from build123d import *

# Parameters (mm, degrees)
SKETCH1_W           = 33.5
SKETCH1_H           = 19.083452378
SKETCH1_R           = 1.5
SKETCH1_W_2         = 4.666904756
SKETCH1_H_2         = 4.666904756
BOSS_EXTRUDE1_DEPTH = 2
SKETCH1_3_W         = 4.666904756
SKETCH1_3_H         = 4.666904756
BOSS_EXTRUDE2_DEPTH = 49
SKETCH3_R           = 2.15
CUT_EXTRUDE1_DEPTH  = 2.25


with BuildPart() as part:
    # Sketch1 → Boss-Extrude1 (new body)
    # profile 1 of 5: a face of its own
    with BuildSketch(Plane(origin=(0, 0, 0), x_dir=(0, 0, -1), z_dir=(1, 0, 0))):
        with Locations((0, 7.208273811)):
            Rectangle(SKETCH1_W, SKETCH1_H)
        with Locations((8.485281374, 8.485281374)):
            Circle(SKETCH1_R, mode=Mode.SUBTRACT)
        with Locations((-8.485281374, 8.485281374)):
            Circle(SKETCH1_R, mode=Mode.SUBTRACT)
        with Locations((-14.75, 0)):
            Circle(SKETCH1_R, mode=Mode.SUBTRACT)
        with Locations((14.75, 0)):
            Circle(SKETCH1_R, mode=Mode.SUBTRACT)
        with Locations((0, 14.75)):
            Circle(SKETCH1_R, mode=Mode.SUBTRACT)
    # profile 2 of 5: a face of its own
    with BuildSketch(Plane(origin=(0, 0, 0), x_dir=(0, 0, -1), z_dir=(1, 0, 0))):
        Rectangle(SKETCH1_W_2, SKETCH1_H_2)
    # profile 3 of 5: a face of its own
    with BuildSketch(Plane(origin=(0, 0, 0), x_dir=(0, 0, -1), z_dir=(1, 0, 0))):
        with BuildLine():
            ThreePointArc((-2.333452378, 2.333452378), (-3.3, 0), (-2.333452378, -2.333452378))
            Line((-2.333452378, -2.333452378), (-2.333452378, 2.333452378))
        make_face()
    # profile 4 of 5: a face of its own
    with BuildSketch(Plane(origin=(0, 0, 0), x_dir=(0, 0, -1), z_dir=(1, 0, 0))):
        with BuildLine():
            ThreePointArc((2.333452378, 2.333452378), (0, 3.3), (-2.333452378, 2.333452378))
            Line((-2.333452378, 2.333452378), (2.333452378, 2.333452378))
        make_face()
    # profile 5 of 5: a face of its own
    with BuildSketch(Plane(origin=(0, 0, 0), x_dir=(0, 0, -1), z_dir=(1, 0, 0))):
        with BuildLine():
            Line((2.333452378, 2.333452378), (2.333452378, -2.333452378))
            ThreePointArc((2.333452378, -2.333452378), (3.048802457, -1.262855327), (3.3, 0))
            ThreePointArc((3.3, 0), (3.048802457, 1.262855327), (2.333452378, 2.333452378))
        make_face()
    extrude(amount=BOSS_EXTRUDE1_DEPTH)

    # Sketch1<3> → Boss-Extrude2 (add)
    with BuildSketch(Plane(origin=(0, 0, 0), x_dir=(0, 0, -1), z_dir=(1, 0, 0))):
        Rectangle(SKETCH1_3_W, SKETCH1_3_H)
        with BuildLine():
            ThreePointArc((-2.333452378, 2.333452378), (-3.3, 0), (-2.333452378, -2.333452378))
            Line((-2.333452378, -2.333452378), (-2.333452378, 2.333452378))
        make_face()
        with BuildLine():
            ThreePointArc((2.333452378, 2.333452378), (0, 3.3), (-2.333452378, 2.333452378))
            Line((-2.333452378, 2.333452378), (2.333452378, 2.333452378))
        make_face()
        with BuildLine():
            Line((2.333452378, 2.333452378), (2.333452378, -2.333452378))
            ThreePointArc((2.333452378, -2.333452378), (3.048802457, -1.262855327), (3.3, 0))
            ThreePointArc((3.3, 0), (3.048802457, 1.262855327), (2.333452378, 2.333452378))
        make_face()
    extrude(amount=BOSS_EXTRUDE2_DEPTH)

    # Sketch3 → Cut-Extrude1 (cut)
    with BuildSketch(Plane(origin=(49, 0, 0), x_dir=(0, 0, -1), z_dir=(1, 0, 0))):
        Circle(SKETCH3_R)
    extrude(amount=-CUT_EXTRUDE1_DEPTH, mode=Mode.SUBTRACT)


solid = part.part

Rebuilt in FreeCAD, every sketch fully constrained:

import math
import FreeCAD as App
import Part
import Sketcher

doc = App.newDocument("Part")
body = doc.addObject("PartDesign::Body", "Body")

# Sketch on YZ plane
sketch1 = body.newObject("Sketcher::SketchObject", "Sketch")
sketch1.AttachmentSupport = (doc.getObject("YZ_Plane"), [""])
sketch1.MapMode = "FlatFace"
sketch1.addGeometry(Part.LineSegment(App.Vector(16.8, 16.8, 0), App.Vector(-2.3, 16.8, 0)), False)
sketch1.addGeometry(Part.LineSegment(App.Vector(-2.3, 16.8, 0), App.Vector(-2.3, -16.8, 0)), False)
sketch1.addGeometry(Part.LineSegment(App.Vector(-2.3, -16.8, 0), App.Vector(16.8, -16.8, 0)), False)
sketch1.addGeometry(Part.LineSegment(App.Vector(16.8, -16.8, 0), App.Vector(16.8, 16.8, 0)), False)
sketch1.addGeometry(Part.Circle(App.Vector(0, 14.8, 0), App.Vector(0, 0, 1), 1.5), False)
sketch1.addGeometry(Part.Circle(App.Vector(0, -14.8, 0), App.Vector(0, 0, 1), 1.5), False)
sketch1.addGeometry(Part.Circle(App.Vector(8.5, 8.5, 0), App.Vector(0, 0, 1), 1.5), False)
sketch1.addGeometry(Part.Circle(App.Vector(8.5, -8.5, 0), App.Vector(0, 0, 1), 1.5), False)
sketch1.addGeometry(Part.Circle(App.Vector(14.8, 0, 0), App.Vector(0, 0, 1), 1.5), False)
sketch1.addConstraint(Sketcher.Constraint("Coincident", 0, 2, 1, 1))
sketch1.addConstraint(Sketcher.Constraint("Coincident", 1, 2, 2, 1))
sketch1.addConstraint(Sketcher.Constraint("Coincident", 2, 2, 3, 1))
sketch1.addConstraint(Sketcher.Constraint("Coincident", 3, 2, 0, 1))
sketch1.addConstraint(Sketcher.Constraint("Horizontal", 0))
sketch1.addConstraint(Sketcher.Constraint("Vertical", 1))
sketch1.addConstraint(Sketcher.Constraint("Horizontal", 2))
sketch1.addConstraint(Sketcher.Constraint("Vertical", 3))
sketch1.addConstraint(Sketcher.Constraint("Equal", 4, 5))
sketch1.addConstraint(Sketcher.Constraint("Equal", 5, 6))
sketch1.addConstraint(Sketcher.Constraint("Equal", 6, 7))
sketch1.addConstraint(Sketcher.Constraint("Equal", 7, 8))
sketch1.addConstraint(Sketcher.Constraint("Symmetric", 4, 3, 5, 3, -1, 1))
sketch1.addConstraint(Sketcher.Constraint("Symmetric", 6, 3, 7, 3, -1))
sketch1.addConstraint(Sketcher.Constraint("PointOnObject", 4, 3, -2))
sketch1.addConstraint(Sketcher.Constraint("PointOnObject", 8, 3, -1))
sketch1.addConstraint(Sketcher.Constraint("Diameter", 4, 3.0))
sketch1.addConstraint(Sketcher.Constraint("DistanceY", 1, 2, 1, 1, 33.5))
sketch1.addConstraint(Sketcher.Constraint("DistanceY", 4, 3, 0, 2, 2.0))
sketch1.addConstraint(Sketcher.Constraint("DistanceY", 1, 2, 5, 3, 2.0))
sketch1.addConstraint(Sketcher.Constraint("DistanceX", 8, 3, 2, 2, 2.0))
sketch1.addConstraint(Sketcher.Constraint("DistanceX", -1, 1, 8, 3, 14.75))
sketch1.addConstraint(Sketcher.Constraint("DistanceX", 0, 2, 0, 1, 19.083452))
sketch1.addConstraint(Sketcher.Constraint("DistanceX", -1, 1, 6, 3, 8.485281))
sketch1.addConstraint(Sketcher.Constraint("DistanceY", -1, 1, 6, 3, 8.485281))
pad1 = body.newObject("PartDesign::Pad", "Pad")
pad1.Profile = sketch1
pad1.Length = 2

# Sketch on YZ plane
sketch2 = body.newObject("Sketcher::SketchObject", "Sketch001")
sketch2.AttachmentSupport = (doc.getObject("YZ_Plane"), [""])
sketch2.MapMode = "FlatFace"
sketch2.addGeometry(Part.LineSegment(App.Vector(-2.3, 2.3, 0), App.Vector(-2.3, -2.3, 0)), False)
sketch2.addGeometry(Part.ArcOfCircle(Part.Circle(App.Vector(0, 0, 0), App.Vector(0, 0, 1), 3.3), math.radians(-135), math.radians(-90)), False)
sketch2.addGeometry(Part.ArcOfCircle(Part.Circle(App.Vector(0, 0, 0), App.Vector(0, 0, 1), 3.3), math.radians(-90), math.radians(-45)), False)
sketch2.addGeometry(Part.ArcOfCircle(Part.Circle(App.Vector(0, 0, 0), App.Vector(0, 0, 1), 3.3), math.radians(-45), math.radians(45)), False)
sketch2.addGeometry(Part.ArcOfCircle(Part.Circle(App.Vector(0, 0, 0), App.Vector(0, 0, 1), 3.3), math.radians(45), math.radians(135)), False)
sketch2.addConstraint(Sketcher.Constraint("Coincident", 0, 2, 1, 1))
sketch2.addConstraint(Sketcher.Constraint("Tangent", 1, 2, 2, 1))
sketch2.addConstraint(Sketcher.Constraint("Tangent", 2, 2, 3, 1))
sketch2.addConstraint(Sketcher.Constraint("Tangent", 3, 2, 4, 1))
sketch2.addConstraint(Sketcher.Constraint("Coincident", 4, 2, 0, 1))
sketch2.addConstraint(Sketcher.Constraint("Vertical", 0))
sketch2.addConstraint(Sketcher.Constraint("Coincident", 1, 3, -1, 1))
sketch2.addConstraint(Sketcher.Constraint("Coincident", 3, 3, -1, 1))
sketch2.addConstraint(Sketcher.Constraint("Equal", 3, 4))
sketch2.addConstraint(Sketcher.Constraint("PointOnObject", 1, 2, -2))
sketch2.addConstraint(Sketcher.Constraint("Horizontal", 0, 2, 2, 2))
sketch2.addConstraint(Sketcher.Constraint("Horizontal", 3, 2, 4, 2))
sketch2.addConstraint(Sketcher.Constraint("Radius", 1, 3.3))
sketch2.addConstraint(Sketcher.Constraint("DistanceY", 0, 2, 0, 1, 4.666905))
pad2 = body.newObject("PartDesign::Pad", "Pad001")
pad2.Profile = sketch2
pad2.Length = 49

# Sketch on YZ plane
sketch3 = body.newObject("Sketcher::SketchObject", "Sketch002")
sketch3.AttachmentSupport = (doc.getObject("YZ_Plane"), [""])
sketch3.MapMode = "FlatFace"
sketch3.AttachmentOffset = App.Placement(App.Vector(0, 0, 49), App.Rotation())
sketch3.addGeometry(Part.Circle(App.Vector(0, 0, 0), App.Vector(0, 0, 1), 2.1), False)
sketch3.addConstraint(Sketcher.Constraint("Coincident", 0, 3, -1, 1))
sketch3.addConstraint(Sketcher.Constraint("Diameter", 0, 4.3))
pocket1 = body.newObject("PartDesign::Pocket", "Pocket")
pocket1.Profile = sketch3
pocket1.Length = 2.25

doc.recompute()
